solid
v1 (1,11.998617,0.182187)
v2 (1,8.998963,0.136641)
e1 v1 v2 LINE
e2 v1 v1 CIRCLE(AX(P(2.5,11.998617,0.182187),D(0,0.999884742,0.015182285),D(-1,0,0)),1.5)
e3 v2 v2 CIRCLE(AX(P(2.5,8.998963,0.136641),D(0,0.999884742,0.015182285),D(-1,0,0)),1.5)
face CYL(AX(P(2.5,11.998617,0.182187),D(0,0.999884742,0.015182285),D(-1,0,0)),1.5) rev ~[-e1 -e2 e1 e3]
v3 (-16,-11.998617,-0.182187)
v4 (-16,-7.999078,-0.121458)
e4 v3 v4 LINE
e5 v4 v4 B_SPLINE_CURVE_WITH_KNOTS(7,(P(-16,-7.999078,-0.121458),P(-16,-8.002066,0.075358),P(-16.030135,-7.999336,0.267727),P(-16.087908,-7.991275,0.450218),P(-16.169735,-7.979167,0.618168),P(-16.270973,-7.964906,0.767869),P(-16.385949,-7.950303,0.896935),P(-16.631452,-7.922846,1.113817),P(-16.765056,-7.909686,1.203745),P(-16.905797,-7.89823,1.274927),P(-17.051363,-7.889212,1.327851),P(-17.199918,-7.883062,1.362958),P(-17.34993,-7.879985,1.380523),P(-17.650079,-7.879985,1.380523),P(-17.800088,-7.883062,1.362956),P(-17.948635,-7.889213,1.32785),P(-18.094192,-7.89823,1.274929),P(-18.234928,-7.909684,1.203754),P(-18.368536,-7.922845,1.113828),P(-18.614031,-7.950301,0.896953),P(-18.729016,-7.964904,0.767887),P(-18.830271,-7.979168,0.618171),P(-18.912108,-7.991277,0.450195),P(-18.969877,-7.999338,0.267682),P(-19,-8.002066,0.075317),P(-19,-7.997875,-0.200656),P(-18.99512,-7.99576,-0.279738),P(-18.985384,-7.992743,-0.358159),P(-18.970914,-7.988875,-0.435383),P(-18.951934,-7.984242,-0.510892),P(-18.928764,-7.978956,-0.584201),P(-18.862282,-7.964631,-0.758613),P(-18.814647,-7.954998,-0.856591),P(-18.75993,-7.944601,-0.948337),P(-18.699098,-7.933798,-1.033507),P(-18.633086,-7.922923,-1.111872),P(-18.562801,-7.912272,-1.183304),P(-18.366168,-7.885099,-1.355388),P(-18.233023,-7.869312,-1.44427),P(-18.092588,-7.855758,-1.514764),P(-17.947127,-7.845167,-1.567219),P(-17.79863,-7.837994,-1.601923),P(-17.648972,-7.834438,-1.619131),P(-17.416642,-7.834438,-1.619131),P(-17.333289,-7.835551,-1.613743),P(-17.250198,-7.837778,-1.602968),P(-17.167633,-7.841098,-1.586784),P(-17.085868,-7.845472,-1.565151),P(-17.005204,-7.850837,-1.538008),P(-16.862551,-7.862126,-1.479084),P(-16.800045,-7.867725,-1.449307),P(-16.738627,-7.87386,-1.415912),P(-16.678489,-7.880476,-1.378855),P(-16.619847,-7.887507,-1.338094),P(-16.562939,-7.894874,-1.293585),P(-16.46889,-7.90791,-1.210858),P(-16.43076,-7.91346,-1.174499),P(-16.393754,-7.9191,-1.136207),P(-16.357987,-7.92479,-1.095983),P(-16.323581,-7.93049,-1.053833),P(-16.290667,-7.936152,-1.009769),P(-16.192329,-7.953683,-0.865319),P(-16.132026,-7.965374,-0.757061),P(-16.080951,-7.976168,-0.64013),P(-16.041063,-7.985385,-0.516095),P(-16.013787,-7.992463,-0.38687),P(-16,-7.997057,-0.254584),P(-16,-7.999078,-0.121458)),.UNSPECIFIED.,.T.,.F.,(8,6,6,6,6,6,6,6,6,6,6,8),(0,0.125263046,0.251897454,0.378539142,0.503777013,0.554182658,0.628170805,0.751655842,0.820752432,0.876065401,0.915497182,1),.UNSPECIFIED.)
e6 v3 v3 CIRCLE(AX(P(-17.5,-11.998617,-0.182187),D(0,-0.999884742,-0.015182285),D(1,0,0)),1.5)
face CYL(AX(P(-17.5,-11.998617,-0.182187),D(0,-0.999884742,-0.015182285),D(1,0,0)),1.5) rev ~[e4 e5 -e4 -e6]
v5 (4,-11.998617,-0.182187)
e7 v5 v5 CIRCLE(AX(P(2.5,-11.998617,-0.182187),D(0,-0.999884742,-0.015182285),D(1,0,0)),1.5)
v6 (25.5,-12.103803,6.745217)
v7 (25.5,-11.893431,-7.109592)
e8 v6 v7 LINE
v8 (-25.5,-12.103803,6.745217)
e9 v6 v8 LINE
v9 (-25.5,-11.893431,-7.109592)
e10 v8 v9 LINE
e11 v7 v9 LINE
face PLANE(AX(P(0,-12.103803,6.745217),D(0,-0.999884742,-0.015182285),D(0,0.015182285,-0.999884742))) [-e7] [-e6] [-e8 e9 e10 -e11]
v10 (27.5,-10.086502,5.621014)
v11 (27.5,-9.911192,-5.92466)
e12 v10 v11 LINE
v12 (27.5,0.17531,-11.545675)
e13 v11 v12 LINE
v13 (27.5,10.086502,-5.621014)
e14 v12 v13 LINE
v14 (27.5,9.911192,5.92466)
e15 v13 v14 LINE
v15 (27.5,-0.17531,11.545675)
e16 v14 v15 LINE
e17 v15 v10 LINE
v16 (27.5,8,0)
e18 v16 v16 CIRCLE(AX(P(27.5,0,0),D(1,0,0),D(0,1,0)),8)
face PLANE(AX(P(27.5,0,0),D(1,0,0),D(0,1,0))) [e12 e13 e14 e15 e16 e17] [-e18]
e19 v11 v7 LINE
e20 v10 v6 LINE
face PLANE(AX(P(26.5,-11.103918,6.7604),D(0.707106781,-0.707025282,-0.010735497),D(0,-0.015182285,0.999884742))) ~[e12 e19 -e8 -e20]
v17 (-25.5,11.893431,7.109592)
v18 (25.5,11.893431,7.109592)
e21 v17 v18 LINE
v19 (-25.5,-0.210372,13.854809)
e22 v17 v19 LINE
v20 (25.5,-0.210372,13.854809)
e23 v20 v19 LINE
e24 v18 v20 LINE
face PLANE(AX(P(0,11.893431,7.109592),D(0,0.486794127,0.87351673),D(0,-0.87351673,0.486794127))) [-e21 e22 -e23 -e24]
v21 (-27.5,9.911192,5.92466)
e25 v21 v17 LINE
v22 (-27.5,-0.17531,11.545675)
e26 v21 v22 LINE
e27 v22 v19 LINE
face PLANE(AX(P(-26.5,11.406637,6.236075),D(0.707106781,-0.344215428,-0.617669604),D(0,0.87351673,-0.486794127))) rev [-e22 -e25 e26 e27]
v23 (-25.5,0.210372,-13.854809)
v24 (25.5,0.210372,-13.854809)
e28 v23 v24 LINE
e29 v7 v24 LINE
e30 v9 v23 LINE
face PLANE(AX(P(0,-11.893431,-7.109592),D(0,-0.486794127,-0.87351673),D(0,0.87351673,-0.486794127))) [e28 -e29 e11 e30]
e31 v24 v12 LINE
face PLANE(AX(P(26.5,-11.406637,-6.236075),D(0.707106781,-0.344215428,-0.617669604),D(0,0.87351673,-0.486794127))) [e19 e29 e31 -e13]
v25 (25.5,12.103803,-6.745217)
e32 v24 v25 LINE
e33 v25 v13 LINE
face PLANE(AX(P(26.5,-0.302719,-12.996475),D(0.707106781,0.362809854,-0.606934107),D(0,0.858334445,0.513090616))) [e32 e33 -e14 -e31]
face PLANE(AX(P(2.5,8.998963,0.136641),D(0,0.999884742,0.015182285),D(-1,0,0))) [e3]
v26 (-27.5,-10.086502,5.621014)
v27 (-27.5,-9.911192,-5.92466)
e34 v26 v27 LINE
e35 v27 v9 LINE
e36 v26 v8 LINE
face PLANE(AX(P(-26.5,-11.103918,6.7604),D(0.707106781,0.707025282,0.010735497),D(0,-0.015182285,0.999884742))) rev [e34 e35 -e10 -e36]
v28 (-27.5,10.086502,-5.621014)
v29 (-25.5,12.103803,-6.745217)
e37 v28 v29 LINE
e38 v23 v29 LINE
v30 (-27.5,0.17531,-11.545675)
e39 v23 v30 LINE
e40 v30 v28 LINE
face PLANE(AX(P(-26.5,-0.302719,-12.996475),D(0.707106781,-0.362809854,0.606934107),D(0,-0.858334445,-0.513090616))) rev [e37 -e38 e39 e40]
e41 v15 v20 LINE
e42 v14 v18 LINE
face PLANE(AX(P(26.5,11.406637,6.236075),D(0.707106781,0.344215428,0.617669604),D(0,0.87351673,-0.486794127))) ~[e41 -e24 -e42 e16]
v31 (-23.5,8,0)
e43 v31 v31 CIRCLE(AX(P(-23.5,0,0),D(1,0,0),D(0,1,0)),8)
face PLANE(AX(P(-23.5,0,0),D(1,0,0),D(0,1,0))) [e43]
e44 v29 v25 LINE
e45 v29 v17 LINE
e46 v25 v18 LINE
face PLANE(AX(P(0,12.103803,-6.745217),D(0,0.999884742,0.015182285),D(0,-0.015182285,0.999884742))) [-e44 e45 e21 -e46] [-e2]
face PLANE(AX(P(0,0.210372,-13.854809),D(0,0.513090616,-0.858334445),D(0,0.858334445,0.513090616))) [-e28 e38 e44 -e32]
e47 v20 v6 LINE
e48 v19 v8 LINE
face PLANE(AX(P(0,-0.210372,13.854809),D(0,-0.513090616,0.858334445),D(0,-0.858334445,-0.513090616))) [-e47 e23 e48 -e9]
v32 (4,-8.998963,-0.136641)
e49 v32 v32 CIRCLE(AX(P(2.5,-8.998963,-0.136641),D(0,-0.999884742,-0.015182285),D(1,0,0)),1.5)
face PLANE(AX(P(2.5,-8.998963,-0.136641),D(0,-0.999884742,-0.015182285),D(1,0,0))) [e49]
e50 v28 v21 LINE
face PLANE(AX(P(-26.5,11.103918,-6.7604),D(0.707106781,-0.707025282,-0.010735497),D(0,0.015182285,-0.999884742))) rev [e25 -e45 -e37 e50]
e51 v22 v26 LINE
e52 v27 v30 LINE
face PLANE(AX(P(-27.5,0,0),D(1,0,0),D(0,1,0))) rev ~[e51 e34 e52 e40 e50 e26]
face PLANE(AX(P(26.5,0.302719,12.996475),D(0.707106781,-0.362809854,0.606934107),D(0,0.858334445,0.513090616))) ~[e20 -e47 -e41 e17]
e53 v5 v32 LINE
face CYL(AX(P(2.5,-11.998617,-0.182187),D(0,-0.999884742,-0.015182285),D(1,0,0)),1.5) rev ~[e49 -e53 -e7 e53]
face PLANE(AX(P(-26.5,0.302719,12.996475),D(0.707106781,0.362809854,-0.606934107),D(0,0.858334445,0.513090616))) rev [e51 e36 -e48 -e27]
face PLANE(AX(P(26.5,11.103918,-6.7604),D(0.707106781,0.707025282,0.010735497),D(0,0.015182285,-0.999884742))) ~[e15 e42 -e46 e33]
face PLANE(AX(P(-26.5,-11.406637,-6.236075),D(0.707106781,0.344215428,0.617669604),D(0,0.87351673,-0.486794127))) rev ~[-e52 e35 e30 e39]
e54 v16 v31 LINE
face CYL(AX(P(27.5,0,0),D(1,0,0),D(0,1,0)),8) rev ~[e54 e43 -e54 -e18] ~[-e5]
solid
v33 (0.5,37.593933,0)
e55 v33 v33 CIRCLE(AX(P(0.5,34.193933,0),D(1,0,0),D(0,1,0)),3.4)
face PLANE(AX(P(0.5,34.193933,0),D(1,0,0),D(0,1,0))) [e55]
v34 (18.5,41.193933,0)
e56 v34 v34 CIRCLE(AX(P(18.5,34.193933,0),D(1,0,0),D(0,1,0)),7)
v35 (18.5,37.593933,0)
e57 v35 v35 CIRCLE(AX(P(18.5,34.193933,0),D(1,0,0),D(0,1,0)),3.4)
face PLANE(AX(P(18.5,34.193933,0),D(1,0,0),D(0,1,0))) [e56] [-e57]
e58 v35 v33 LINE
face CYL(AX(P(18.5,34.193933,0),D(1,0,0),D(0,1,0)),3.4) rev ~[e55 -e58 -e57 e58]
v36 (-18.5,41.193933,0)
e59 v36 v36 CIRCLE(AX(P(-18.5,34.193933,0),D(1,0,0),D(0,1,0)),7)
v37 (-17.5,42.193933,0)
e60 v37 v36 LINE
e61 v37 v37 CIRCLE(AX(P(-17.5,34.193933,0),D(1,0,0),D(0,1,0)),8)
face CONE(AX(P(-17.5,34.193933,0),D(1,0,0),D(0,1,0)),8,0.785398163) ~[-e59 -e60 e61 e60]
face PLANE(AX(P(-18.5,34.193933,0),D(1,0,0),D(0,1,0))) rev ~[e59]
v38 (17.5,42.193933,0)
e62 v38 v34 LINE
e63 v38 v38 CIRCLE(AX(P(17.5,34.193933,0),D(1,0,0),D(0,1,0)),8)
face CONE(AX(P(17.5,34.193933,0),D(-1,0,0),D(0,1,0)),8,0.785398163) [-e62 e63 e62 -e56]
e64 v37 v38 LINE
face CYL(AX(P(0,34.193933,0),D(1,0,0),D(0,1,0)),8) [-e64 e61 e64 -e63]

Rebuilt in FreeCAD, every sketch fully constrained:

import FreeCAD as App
import Part
import Sketcher

V = App.Vector
Q = App.Units.Quantity


def edges_at(feature, points):
    """Names of the edges that pass closest to the given points."""
    edges = feature.Shape.Edges
    near = lambda p: min(range(len(edges)), key=lambda i: edges[i].distToShape(Part.Vertex(*p))[0])
    return sorted({f"Edge{near(p) + 1}" for p in points})

doc = App.newDocument("Part")
body = doc.addObject("PartDesign::Body", "Body")

sketch1 = body.newObject("Sketcher::SketchObject", "Sketch")
sketch1.AttachmentSupport = (doc.getObject("YZ_Plane"), [""])
sketch1.MapMode = "FlatFace"
sketch1.addGeometry(Part.LineSegment(V(-12, -7, 0), V(0, -14, 0)), False)
sketch1.addGeometry(Part.LineSegment(V(0, -14, 0), V(12, -7, 0)), False)
sketch1.addGeometry(Part.LineSegment(V(12, -7, 0), V(12, 7, 0)), False)
sketch1.addGeometry(Part.LineSegment(V(12, 7, 0), V(0, 14, 0)), False)
sketch1.addGeometry(Part.LineSegment(V(0, 14, 0), V(-12, 7, 0)), False)
sketch1.addGeometry(Part.LineSegment(V(-12, 7, 0), V(-12, -7, 0)), False)
sketch1.addConstraint(Sketcher.Constraint("Coincident", 0, 2, 1, 1))
sketch1.addConstraint(Sketcher.Constraint("Coincident", 1, 2, 2, 1))
sketch1.addConstraint(Sketcher.Constraint("Coincident", 2, 2, 3, 1))
sketch1.addConstraint(Sketcher.Constraint("Coincident", 3, 2, 4, 1))
sketch1.addConstraint(Sketcher.Constraint("Coincident", 4, 2, 5, 1))
sketch1.addConstraint(Sketcher.Constraint("Coincident", 5, 2, 0, 1))
sketch1.addConstraint(Sketcher.Constraint("Symmetric", 0, 2, 3, 2, -1, 1))
sketch1.addConstraint(Sketcher.Constraint("Symmetric", 1, 2, 4, 2, -1, 1))
sketch1.addConstraint(Sketcher.Constraint("Symmetric", 2, 2, 5, 2, -1, 1))
sketch1.addConstraint(Sketcher.Constraint("Equal", 0, 1))
sketch1.addConstraint(Sketcher.Constraint("Equal", 1, 2))
sketch1.addConstraint(Sketcher.Constraint("DistanceY", 0, 2, 2, 2, Q("20.964402 mm")))
sketch1.addConstraint(Sketcher.Constraint("DistanceX", -1, 1, 0, 2, Q("0.210372 mm")))
sketch1.addConstraint(Sketcher.Constraint("DistanceY", 0, 2, -1, 1, Q("13.854809 mm")))
sketch1.addConstraint(Sketcher.Constraint("DistanceX", -1, 1, 2, 2, Q("11.893431 mm")))
pad1 = body.newObject("PartDesign::Pad", "Pad")
pad1.Profile = sketch1
pad1.Length = 55
pad1.Midplane = True

sketch2 = body.newObject("Sketcher::SketchObject", "Sketch001")
sketch2.AttachmentSupport = (doc.getObject("YZ_Plane"), [""])
sketch2.MapMode = "FlatFace"
sketch2.AttachmentOffset = App.Placement(V(0, 0, 27.5), App.Rotation())
sketch2.addGeometry(Part.Circle(V(0, 0, 0), V(0, 0, 1), 8), False)
sketch2.addConstraint(Sketcher.Constraint("Coincident", 0, 3, -1, 1))
sketch2.addConstraint(Sketcher.Constraint("Diameter", 0, Q("16 mm")))
pocket1 = body.newObject("PartDesign::Pocket", "Pocket")
pocket1.Profile = sketch2
pocket1.Length = 51

sketch3 = body.newObject("Sketcher::SketchObject", "Sketch002")
sketch3.Placement = App.Placement(V(0, -11.998617, -0.182187), App.Rotation(V(1, 0, 0), V(0, -0.015182285, 0.999884742), V(0, -0.999884742, -0.015182285), "ZXY"))
sketch3.addGeometry(Part.Circle(V(2.5, 0, 0), V(0, 0, 1), 1.5), False)
sketch3.addConstraint(Sketcher.Constraint("PointOnObject", 0, 3, -1))
sketch3.addConstraint(Sketcher.Constraint("Diameter", 0, Q("3 mm")))
sketch3.addConstraint(Sketcher.Constraint("DistanceX", -1, 1, 0, 3, Q("2.5 mm")))
pocket2 = body.newObject("PartDesign::Pocket", "Pocket001")
pocket2.Profile = sketch3
pocket2.Length = 3

sketch4 = body.newObject("Sketcher::SketchObject", "Sketch003")
sketch4.Placement = App.Placement(V(0, -11.998617, -0.182187), App.Rotation(V(1, 0, 0), V(0, -0.015182285, 0.999884742), V(0, -0.999884742, -0.015182285), "ZXY"))
sketch4.addGeometry(Part.Circle(V(-17.5, 0, 0), V(0, 0, 1), 1.5), False)
sketch4.addConstraint(Sketcher.Constraint("PointOnObject", 0, 3, -1))
sketch4.addConstraint(Sketcher.Constraint("Diameter", 0, Q("3 mm")))
sketch4.addConstraint(Sketcher.Constraint("DistanceX", 0, 3, -1, 1, Q("17.5 mm")))
pocket3 = body.newObject("PartDesign::Pocket", "Pocket002")
pocket3.Profile = sketch4
pocket3.Length = 5

sketch5 = body.newObject("Sketcher::SketchObject", "Sketch004")
sketch5.Placement = App.Placement(V(0, 11.998617, 0.182187), App.Rotation(V(-1, 0, 0), V(0, -0.015182285, 0.999884742), V(0, 0.999884742, 0.015182285), "ZXY"))
sketch5.addGeometry(Part.Circle(V(-2.5, 0, 0), V(0, 0, 1), 1.5), False)
sketch5.addConstraint(Sketcher.Constraint("PointOnObject", 0, 3, -1))
sketch5.addConstraint(Sketcher.Constraint("Diameter", 0, Q("3 mm")))
sketch5.addConstraint(Sketcher.Constraint("DistanceX", 0, 3, -1, 1, Q("2.5 mm")))
pocket4 = body.newObject("PartDesign::Pocket", "Pocket003")
pocket4.Profile = sketch5
pocket4.Length = 3
doc.recompute()

chamfer = body.newObject("PartDesign::Chamfer", "Chamfer")
chamfer.Base = (pocket4, edges_at(pocket4, [
    (27.5, -6.157, 10.3),
    (27.5, -11.999, -0.182),
    (27.5, -5.842, -10.482),
    (27.5, 6.157, -10.3),
    (27.5, 11.999, 0.182),
    (27.5, 5.842, 10.482),
    (-27.5, 5.842, 10.482),
    (-27.5, -6.157, 10.3),
    (-27.5, -11.999, -0.182),
    (-27.5, -5.842, -10.482),
    (-27.5, 6.157, -10.3),
    (-27.5, 11.999, 0.182),
]))
chamfer.Size = 2
body2 = doc.addObject("PartDesign::Body", "Body001")

sketch6 = body2.newObject("Sketcher::SketchObject", "Sketch005")
sketch6.AttachmentSupport = (doc.getObject("YZ_Plane001"), [""])
sketch6.MapMode = "FlatFace"
sketch6.addGeometry(Part.Circle(V(34, 0, 0), V(0, 0, 1), 8), False)
sketch6.addConstraint(Sketcher.Constraint("PointOnObject", 0, 3, -1))
sketch6.addConstraint(Sketcher.Constraint("Diameter", 0, Q("16 mm")))
sketch6.addConstraint(Sketcher.Constraint("DistanceX", -1, 1, 0, 3, Q("34.193933 mm")))
pad2 = body2.newObject("PartDesign::Pad", "Pad001")
pad2.Profile = sketch6
pad2.Length = 37
pad2.Midplane = True

sketch7 = body2.newObject("Sketcher::SketchObject", "Sketch006")
sketch7.AttachmentSupport = (doc.getObject("YZ_Plane001"), [""])
sketch7.MapMode = "FlatFace"
sketch7.AttachmentOffset = App.Placement(V(0, 0, 18.5), App.Rotation())
sketch7.addGeometry(Part.Circle(V(34.2, 0, 0), V(0, 0, 1), 3.4), False)
sketch7.addConstraint(Sketcher.Constraint("PointOnObject", 0, 3, -1))
sketch7.addConstraint(Sketcher.Constraint("Diameter", 0, Q("6.8 mm")))
sketch7.addConstraint(Sketcher.Constraint("DistanceX", -1, 1, 0, 3, Q("34.193933 mm")))
pocket5 = body2.newObject("PartDesign::Pocket", "Pocket004")
pocket5.Profile = sketch7
pocket5.Length = 18
doc.recompute()

chamfer2 = body2.newObject("PartDesign::Chamfer", "Chamfer001")
chamfer2.Base = (pocket5, edges_at(pocket5, [(18.5, 26.194, 0), (-18.5, 26.194, 0)]))
chamfer2.Size = 1

doc.recompute()
